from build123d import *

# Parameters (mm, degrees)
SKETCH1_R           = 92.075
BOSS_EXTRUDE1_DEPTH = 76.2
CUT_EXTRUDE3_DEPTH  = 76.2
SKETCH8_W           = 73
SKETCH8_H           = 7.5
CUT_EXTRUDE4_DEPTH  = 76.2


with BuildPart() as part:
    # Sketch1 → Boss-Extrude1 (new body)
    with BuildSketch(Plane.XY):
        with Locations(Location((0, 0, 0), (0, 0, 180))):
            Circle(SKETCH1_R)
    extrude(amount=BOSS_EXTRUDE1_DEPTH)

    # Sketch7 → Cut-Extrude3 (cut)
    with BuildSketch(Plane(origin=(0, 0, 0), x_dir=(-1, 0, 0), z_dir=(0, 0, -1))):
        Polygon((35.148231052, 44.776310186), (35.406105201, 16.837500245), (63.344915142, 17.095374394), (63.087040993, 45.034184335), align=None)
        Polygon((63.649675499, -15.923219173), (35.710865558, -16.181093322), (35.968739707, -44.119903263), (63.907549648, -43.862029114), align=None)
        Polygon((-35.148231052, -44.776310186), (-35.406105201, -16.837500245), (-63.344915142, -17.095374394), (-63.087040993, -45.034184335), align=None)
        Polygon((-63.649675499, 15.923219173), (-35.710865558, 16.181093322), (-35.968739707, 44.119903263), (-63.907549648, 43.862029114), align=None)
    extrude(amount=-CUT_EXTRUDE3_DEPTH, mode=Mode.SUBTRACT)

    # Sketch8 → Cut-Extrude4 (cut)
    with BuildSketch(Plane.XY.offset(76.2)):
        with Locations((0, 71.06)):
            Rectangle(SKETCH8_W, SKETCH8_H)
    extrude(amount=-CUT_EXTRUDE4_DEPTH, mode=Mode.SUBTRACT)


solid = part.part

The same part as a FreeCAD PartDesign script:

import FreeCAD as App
import Part
import Sketcher

V = App.Vector
Q = App.Units.Quantity

doc = App.newDocument("Part")
params = doc.addObject("Spreadsheet::Sheet", "Params")
for row, (alias, value) in enumerate([
    ("sketch1_diameter", "7.25 in"),
    ("pad1_length", "3 in"),
    ("sketch2_length", "1.1 in"),
    ("pocket1_length", "3 in"),
    ("pocket2_length", "3 in"),
], start=1):
    params.set(f"A{row}", alias)
    params.set(f"B{row}", "=" + value)
    params.setAlias(f"B{row}", alias)

body = doc.addObject("PartDesign::Body", "Body")

sketch1 = body.newObject("Sketcher::SketchObject", "Sketch")
sketch1.AttachmentSupport = (doc.getObject("XY_Plane"), [""])
sketch1.MapMode = "FlatFace"
sketch1.addGeometry(Part.Circle(V(0, 0, 0), V(0, 0, 1), 92.075), False)
sketch1.addConstraint([
    Sketcher.Constraint("Coincident", 0, 3, -1, 1),
    Sketcher.Constraint("Diameter", 0, Q("7.25 in")),
])
sketch1.setExpression("Constraints[1]", "Params.sketch1_diameter")
pad1 = body.newObject("PartDesign::Pad", "Pad")
pad1.Profile = sketch1
pad1.setExpression("Length", "Params.pad1_length")

sketch2 = body.newObject("Sketcher::SketchObject", "Sketch001")
sketch2.AttachmentSupport = (doc.getObject("XY_Plane"), [""])
sketch2.MapMode = "FlatFace"
sketch2.addGeometry([
    Part.LineSegment(V(-35.148231, 44.77631, 0), V(-35.406105, 16.8375, 0)),
    Part.LineSegment(V(-35.406105, 16.8375, 0), V(-63.344915, 17.095374, 0)),
    Part.LineSegment(V(-63.344915, 17.095374, 0), V(-63.087041, 45.034184, 0)),
    Part.LineSegment(V(-63.087041, 45.034184, 0), V(-35.148231, 44.77631, 0)),
    Part.LineSegment(V(-63.649675, -15.923219, 0), V(-35.710866, -16.181093, 0)),
    Part.LineSegment(V(-35.710866, -16.181093, 0), V(-35.96874, -44.119903, 0)),
    Part.LineSegment(V(-35.96874, -44.119903, 0), V(-63.90755, -43.862029, 0)),
    Part.LineSegment(V(-63.90755, -43.862029, 0), V(-63.649675, -15.923219, 0)),
    Part.LineSegment(V(35.148231, -44.77631, 0), V(35.406105, -16.8375, 0)),
    Part.LineSegment(V(35.406105, -16.8375, 0), V(63.344915, -17.095374, 0)),
    Part.LineSegment(V(63.344915, -17.095374, 0), V(63.087041, -45.034184, 0)),
    Part.LineSegment(V(63.087041, -45.034184, 0), V(35.148231, -44.77631, 0)),
    Part.LineSegment(V(63.649675, 15.923219, 0), V(35.710866, 16.181093, 0)),
    Part.LineSegment(V(35.710866, 16.181093, 0), V(35.96874, 44.119903, 0)),
    Part.LineSegment(V(35.96874, 44.119903, 0), V(63.90755, 43.862029, 0)),
    Part.LineSegment(V(63.90755, 43.862029, 0), V(63.649675, 15.923219, 0)),
], False)
sketch2.addConstraint([
    Sketcher.Constraint("Coincident", 0, 2, 1, 1),
    Sketcher.Constraint("Coincident", 1, 2, 2, 1),
    Sketcher.Constraint("Coincident", 2, 2, 3, 1),
    Sketcher.Constraint("Coincident", 3, 2, 0, 1),
    Sketcher.Constraint("Coincident", 4, 2, 5, 1),
    Sketcher.Constraint("Coincident", 5, 2, 6, 1),
    Sketcher.Constraint("Coincident", 6, 2, 7, 1),
    Sketcher.Constraint("Coincident", 7, 2, 4, 1),
    Sketcher.Constraint("Coincident", 8, 2, 9, 1),
    Sketcher.Constraint("Coincident", 9, 2, 10, 1),
    Sketcher.Constraint("Coincident", 10, 2, 11, 1),
    Sketcher.Constraint("Coincident", 11, 2, 8, 1),
    Sketcher.Constraint("Coincident", 12, 2, 13, 1),
    Sketcher.Constraint("Coincident", 13, 2, 14, 1),
    Sketcher.Constraint("Coincident", 14, 2, 15, 1),
    Sketcher.Constraint("Coincident", 15, 2, 12, 1),
    Sketcher.Constraint("Symmetric", 0, 2, 8, 2, -1, 1),
    Sketcher.Constraint("Symmetric", 1, 2, 9, 2, -1, 1),
    Sketcher.Constraint("Symmetric", 2, 2, 10, 2, -1, 1),
    Sketcher.Constraint("Symmetric", 3, 2, 11, 2, -1, 1),
    Sketcher.Constraint("Symmetric", 4, 2, 12, 2, -1, 1),
    Sketcher.Constraint("Symmetric", 5, 2, 13, 2, -1, 1),
    Sketcher.Constraint("Symmetric", 6, 2, 14, 2, -1, 1),
    Sketcher.Constraint("Symmetric", 7, 2, 15, 2, -1, 1),
    Sketcher.Constraint("Perpendicular", 0, 1),
    Sketcher.Constraint("Perpendicular", 1, 2),
    Sketcher.Constraint("Perpendicular", 2, 3),
    Sketcher.Constraint("Parallel", 3, 4),
    Sketcher.Constraint("Perpendicular", 4, 5),
    Sketcher.Constraint("Perpendicular", 5, 6),
    Sketcher.Constraint("Perpendicular", 6, 7),
    Sketcher.Constraint("Equal", 0, 1),
    Sketcher.Constraint("Equal", 3, 4),
    Sketcher.Constraint("Equal", 4, 5),
    Sketcher.Constraint("Distance", 0, Q("1.1 in")),
    Sketcher.Constraint("DistanceY", -1, 1, 0, 2, 16.8375),
    Sketcher.Constraint("DistanceX", 2, 2, 5, 2, 27.118301),
    Sketcher.Constraint("DistanceX", 2, 2, -1, 1, 63.087041),
    Sketcher.Constraint("DistanceY", 6, 2, -1, 1, 43.862029),
    Sketcher.Constraint("DistanceX", 4, 2, 0, 2, 0.30476),
])
sketch2.setExpression("Constraints[34]", "Params.sketch2_length")
pocket1 = body.newObject("PartDesign::Pocket", "Pocket")
pocket1.Profile = sketch2
pocket1.setExpression("Length", "Params.pocket1_length")
pocket1.Reversed = True

sketch3 = body.newObject("Sketcher::SketchObject", "Sketch002")
sketch3.AttachmentSupport = (doc.getObject("XY_Plane"), [""])
sketch3.MapMode = "FlatFace"
sketch3.AttachmentOffset = App.Placement(V(0, 0, 3 * 25.4), App.Rotation())
sketch3.addGeometry([
    Part.LineSegment(V(-36.5, 74.81, 0), V(-36.5, 67.31, 0)),
    Part.LineSegment(V(-36.5, 67.31, 0), V(36.5, 67.31, 0)),
    Part.LineSegment(V(36.5, 67.31, 0), V(36.5, 74.81, 0)),
    Part.LineSegment(V(36.5, 74.81, 0), V(-36.5, 74.81, 0)),
], False)
sketch3.addConstraint([
    Sketcher.Constraint("Coincident", 0, 2, 1, 1),
    Sketcher.Constraint("Coincident", 1, 2, 2, 1),
    Sketcher.Constraint("Coincident", 2, 2, 3, 1),
    Sketcher.Constraint("Coincident", 3, 2, 0, 1),
    Sketcher.Constraint("Vertical", 0),
    Sketcher.Constraint("Horizontal", 1),
    Sketcher.Constraint("Vertical", 2),
    Sketcher.Constraint("Horizontal", 3),
    Sketcher.Constraint("DistanceY", -1, 1, 0, 2, Q("2.65 in")),
    Sketcher.Constraint("DistanceX", 1, 1, 1, 2, 73.0),
    Sketcher.Constraint("DistanceY", 0, 2, 0, 1, 7.5),
    Sketcher.Constraint("DistanceX", 0, 2, -1, 1, 36.5),
])
pocket2 = body.newObject("PartDesign::Pocket", "Pocket001")
pocket2.Profile = sketch3
pocket2.setExpression("Length", "Params.pocket2_length")

doc.recompute()
